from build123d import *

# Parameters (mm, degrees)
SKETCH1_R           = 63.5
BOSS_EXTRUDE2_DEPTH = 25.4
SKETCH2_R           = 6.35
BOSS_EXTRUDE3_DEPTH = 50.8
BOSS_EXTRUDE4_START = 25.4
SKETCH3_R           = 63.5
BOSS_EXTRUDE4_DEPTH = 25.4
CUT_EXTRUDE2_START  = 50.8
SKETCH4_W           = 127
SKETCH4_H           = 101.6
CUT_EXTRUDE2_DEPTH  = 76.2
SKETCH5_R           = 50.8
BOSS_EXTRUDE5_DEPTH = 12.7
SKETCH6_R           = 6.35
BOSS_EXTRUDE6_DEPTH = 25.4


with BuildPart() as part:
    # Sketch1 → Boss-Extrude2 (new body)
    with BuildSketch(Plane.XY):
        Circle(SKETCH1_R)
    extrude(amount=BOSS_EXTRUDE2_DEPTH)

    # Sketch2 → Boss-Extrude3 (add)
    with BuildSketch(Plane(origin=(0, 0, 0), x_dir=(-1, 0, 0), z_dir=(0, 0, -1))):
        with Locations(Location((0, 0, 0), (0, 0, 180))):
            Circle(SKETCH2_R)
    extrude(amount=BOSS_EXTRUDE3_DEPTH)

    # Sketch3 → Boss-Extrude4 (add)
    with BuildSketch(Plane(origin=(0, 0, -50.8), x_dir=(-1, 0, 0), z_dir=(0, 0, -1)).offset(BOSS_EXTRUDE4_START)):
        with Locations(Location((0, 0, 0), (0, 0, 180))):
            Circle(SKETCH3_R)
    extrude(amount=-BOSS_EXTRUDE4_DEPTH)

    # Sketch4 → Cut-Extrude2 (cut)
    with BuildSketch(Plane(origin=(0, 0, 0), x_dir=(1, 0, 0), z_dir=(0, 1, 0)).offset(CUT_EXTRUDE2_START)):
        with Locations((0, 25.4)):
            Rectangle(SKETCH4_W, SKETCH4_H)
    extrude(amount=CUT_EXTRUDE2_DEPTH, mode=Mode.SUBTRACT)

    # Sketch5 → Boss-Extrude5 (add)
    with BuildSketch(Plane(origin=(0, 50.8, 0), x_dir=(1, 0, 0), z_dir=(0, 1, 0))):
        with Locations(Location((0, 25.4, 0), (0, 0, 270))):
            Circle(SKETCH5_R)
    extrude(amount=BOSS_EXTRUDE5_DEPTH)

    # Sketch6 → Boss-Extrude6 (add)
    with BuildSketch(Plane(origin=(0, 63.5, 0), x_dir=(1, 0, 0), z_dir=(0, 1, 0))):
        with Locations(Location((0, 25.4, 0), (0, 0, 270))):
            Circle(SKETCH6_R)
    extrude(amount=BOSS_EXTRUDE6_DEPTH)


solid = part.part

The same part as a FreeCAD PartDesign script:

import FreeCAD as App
import Part
import Sketcher
Q = App.Units.Quantity

doc = App.newDocument("Part")
body = doc.addObject("PartDesign::Body", "Body")

sketch1 = body.newObject("Sketcher::SketchObject", "Sketch")
sketch1.AttachmentSupport = (doc.getObject("XY_Plane"), [""])
sketch1.MapMode = "FlatFace"
sketch1.addGeometry(Part.Circle(App.Vector(0, 0, 0), App.Vector(0, 0, 1), 64), False)
sketch1.addConstraint([
    Sketcher.Constraint("Coincident", 0, 3, -1, 1),
    Sketcher.Constraint("Diameter", 0, Q("5 in")),
])
pad1 = body.newObject("PartDesign::Pad", "Pad")
pad1.Profile = sketch1
pad1.Length = Q("1 in")

sketch2 = body.newObject("Sketcher::SketchObject", "Sketch001")
sketch2.AttachmentSupport = (doc.getObject("XY_Plane"), [""])
sketch2.MapMode = "FlatFace"
sketch2.addGeometry(Part.Circle(App.Vector(0, 0, 0), App.Vector(0, 0, 1), 6), False)
sketch2.addConstraint([
    Sketcher.Constraint("Coincident", 0, 3, -1, 1),
    Sketcher.Constraint("Diameter", 0, Q("0.5 in")),
])
pad2 = body.newObject("PartDesign::Pad", "Pad001")
pad2.Profile = sketch2
pad2.Length = Q("2 in")
pad2.Reversed = True

sketch3 = body.newObject("Sketcher::SketchObject", "Sketch002")
sketch3.AttachmentSupport = (doc.getObject("XY_Plane"), [""])
sketch3.MapMode = "FlatFace"
sketch3.AttachmentOffset = App.Placement(App.Vector(0, 0, -3 * 25.4), App.Rotation())
sketch3.addGeometry(Part.Circle(App.Vector(0, 0, 0), App.Vector(0, 0, 1), 64), False)
sketch3.addConstraint([
    Sketcher.Constraint("Coincident", 0, 3, -1, 1),
    Sketcher.Constraint("Diameter", 0, Q("5 in")),
])
pad3 = body.newObject("PartDesign::Pad", "Pad002")
pad3.Profile = sketch3
pad3.Length = Q("1 in")

sketch4 = body.newObject("Sketcher::SketchObject", "Sketch003")
sketch4.AttachmentSupport = (doc.getObject("XZ_Plane"), [""])
sketch4.MapMode = "FlatFace"
sketch4.AttachmentOffset = App.Placement(App.Vector(0, 0, -2 * 25.4), App.Rotation())
sketch4.addGeometry([
    Part.LineSegment(App.Vector(-64, -76, 0), App.Vector(-64, 25, 0)),
    Part.LineSegment(App.Vector(-64, 25, 0), App.Vector(64, 25, 0)),
    Part.LineSegment(App.Vector(64, 25, 0), App.Vector(64, -76, 0)),
    Part.LineSegment(App.Vector(64, -76, 0), App.Vector(-64, -76, 0)),
], False)
sketch4.addConstraint([
    Sketcher.Constraint("Coincident", 0, 2, 1, 1),
    Sketcher.Constraint("Coincident", 1, 2, 2, 1),
    Sketcher.Constraint("Coincident", 2, 2, 3, 1),
    Sketcher.Constraint("Coincident", 3, 2, 0, 1),
    Sketcher.Constraint("Vertical", 0),
    Sketcher.Constraint("Horizontal", 1),
    Sketcher.Constraint("Vertical", 2),
    Sketcher.Constraint("Horizontal", 3),
    Sketcher.Constraint("DistanceX", 1, 1, 1, 2, Q("5 in")),
    Sketcher.Constraint("DistanceY", 0, 1, 0, 2, Q("4 in")),
    Sketcher.Constraint("DistanceY", -1, 1, 0, 2, Q("1 in")),
    Sketcher.Constraint("DistanceX", 0, 2, -1, 1, Q("2.5 in")),
])
pocket1 = body.newObject("PartDesign::Pocket", "Pocket")
pocket1.Profile = sketch4
pocket1.Length = Q("3 in")

sketch5 = body.newObject("Sketcher::SketchObject", "Sketch004")
sketch5.AttachmentSupport = (doc.getObject("XZ_Plane"), [""])
sketch5.MapMode = "FlatFace"
sketch5.AttachmentOffset = App.Placement(App.Vector(0, 0, -2 * 25.4), App.Rotation())
sketch5.addGeometry(Part.Circle(App.Vector(0, -25, 0), App.Vector(0, 0, 1), 51), False)
sketch5.addConstraint([
    Sketcher.Constraint("PointOnObject", 0, 3, -2),
    Sketcher.Constraint("Diameter", 0, Q("4 in")),
    Sketcher.Constraint("DistanceY", 0, 3, -1, 1, Q("1 in")),
])
pad4 = body.newObject("PartDesign::Pad", "Pad003")
pad4.Profile = sketch5
pad4.Length = Q("0.5 in")
pad4.Reversed = True

sketch6 = body.newObject("Sketcher::SketchObject", "Sketch005")
sketch6.AttachmentSupport = (doc.getObject("XZ_Plane"), [""])
sketch6.MapMode = "FlatFace"
sketch6.AttachmentOffset = App.Placement(App.Vector(0, 0, -2.5 * 25.4), App.Rotation())
sketch6.addGeometry(Part.Circle(App.Vector(0, -25, 0), App.Vector(0, 0, 1), 6), False)
sketch6.addConstraint([
    Sketcher.Constraint("PointOnObject", 0, 3, -2),
    Sketcher.Constraint("Diameter", 0, Q("0.5 in")),
    Sketcher.Constraint("DistanceY", 0, 3, -1, 1, Q("1 in")),
])
pad5 = body.newObject("PartDesign::Pad", "Pad004")
pad5.Profile = sketch6
pad5.Length = Q("1 in")
pad5.Reversed = True

doc.recompute()
